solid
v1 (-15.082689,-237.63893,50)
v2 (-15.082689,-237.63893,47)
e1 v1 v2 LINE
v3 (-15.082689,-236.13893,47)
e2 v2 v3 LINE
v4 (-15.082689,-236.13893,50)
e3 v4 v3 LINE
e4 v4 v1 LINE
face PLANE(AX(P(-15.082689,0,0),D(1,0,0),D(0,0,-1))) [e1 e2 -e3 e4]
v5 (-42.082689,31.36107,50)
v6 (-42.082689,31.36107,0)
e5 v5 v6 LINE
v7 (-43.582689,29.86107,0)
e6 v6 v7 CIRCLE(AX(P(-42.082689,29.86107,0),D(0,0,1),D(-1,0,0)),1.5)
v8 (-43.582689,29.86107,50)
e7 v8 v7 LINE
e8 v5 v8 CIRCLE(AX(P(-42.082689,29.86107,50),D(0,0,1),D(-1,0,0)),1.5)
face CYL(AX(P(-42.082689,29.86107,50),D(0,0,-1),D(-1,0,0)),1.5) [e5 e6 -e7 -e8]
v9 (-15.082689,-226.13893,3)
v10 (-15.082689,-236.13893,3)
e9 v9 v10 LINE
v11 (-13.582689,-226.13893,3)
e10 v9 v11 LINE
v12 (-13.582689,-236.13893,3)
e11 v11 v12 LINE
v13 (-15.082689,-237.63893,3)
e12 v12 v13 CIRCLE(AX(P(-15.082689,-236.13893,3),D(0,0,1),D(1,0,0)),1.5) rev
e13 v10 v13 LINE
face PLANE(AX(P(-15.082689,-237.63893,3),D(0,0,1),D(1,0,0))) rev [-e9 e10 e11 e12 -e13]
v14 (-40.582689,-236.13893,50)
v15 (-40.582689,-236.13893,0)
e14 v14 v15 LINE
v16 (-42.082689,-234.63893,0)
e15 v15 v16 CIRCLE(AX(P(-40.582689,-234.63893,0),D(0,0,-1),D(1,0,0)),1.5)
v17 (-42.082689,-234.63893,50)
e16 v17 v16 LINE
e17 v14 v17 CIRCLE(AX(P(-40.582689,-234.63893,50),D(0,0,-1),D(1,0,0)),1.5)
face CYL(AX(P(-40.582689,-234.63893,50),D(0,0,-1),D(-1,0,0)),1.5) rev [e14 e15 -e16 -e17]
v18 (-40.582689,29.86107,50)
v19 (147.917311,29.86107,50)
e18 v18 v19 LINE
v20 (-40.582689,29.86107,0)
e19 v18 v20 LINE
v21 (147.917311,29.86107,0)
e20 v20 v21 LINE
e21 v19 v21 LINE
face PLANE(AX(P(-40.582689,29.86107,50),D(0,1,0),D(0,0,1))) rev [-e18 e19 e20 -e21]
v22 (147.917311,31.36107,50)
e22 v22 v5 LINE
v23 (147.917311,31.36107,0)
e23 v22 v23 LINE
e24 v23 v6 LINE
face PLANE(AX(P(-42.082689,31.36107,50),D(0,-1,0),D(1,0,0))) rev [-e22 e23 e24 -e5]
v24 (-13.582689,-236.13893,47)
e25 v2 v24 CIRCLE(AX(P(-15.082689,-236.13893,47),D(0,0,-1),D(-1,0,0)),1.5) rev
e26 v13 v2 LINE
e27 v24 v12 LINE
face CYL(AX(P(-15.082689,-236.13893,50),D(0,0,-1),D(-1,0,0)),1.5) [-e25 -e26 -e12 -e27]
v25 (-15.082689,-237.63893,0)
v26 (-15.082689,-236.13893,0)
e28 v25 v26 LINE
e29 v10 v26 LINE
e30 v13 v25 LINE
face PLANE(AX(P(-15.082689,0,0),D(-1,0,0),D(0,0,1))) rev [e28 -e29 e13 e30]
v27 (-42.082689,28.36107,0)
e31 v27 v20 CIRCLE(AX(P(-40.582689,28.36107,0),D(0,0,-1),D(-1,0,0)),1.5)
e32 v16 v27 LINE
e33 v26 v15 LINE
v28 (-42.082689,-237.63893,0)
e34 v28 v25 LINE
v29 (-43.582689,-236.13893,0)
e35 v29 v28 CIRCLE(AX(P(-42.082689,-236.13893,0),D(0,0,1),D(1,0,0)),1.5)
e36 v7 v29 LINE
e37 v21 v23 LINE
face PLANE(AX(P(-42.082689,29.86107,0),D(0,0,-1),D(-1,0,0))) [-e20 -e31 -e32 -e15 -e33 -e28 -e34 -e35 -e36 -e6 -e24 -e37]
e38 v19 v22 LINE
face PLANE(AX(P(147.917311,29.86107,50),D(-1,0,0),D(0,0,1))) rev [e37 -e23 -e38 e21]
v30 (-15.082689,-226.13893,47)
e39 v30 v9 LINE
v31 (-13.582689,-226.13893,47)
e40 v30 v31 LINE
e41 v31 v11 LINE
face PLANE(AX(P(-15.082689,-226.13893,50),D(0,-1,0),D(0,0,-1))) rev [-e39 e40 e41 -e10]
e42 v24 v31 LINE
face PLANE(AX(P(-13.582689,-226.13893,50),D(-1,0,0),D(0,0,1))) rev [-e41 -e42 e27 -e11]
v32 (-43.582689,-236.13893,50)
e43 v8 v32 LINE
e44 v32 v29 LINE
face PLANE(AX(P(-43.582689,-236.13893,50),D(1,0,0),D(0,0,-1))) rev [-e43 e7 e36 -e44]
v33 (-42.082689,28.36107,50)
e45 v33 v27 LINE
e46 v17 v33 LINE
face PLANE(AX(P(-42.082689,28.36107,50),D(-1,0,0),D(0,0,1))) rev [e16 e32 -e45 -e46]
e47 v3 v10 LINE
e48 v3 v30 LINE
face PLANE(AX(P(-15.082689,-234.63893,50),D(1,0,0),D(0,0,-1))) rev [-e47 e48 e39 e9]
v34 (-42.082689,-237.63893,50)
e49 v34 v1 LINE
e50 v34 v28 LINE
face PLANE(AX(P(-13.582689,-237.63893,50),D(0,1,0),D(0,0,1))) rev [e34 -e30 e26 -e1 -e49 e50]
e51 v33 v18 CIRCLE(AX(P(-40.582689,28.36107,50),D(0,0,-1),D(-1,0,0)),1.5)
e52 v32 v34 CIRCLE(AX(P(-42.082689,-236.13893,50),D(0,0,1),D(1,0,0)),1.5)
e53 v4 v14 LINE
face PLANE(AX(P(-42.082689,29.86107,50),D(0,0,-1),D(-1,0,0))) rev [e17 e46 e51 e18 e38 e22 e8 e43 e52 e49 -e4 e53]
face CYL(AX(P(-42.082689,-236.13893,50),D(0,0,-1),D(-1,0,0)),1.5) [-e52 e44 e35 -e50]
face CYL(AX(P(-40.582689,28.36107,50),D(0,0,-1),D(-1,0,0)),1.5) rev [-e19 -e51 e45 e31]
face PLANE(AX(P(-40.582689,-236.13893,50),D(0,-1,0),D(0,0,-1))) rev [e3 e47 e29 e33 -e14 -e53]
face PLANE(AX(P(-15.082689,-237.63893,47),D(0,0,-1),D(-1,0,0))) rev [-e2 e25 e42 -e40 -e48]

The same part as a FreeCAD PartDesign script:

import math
import FreeCAD as App
import Part
import Sketcher


def edges_at(feature, points):
    """Names of the edges that pass closest to the given points."""
    edges = feature.Shape.Edges
    near = lambda p: min(range(len(edges)), key=lambda i: edges[i].distToShape(Part.Vertex(*p))[0])
    return sorted({f"Edge{near(p) + 1}" for p in points})

doc = App.newDocument("Part")
body = doc.addObject("PartDesign::Body", "Body")

sketch1 = body.newObject("Sketcher::SketchObject", "Sketch")
sketch1.AttachmentSupport = (doc.getObject("XY_Plane"), [""])
sketch1.MapMode = "FlatFace"
sketch1.addGeometry(Part.LineSegment(App.Vector(-40.6, 29.9, 0), App.Vector(147.9, 29.9, 0)), False)
sketch1.addGeometry(Part.LineSegment(App.Vector(147.9, 29.9, 0), App.Vector(147.9, 31.4, 0)), False)
sketch1.addGeometry(Part.LineSegment(App.Vector(147.9, 31.4, 0), App.Vector(-42.1, 31.4, 0)), False)
sketch1.addGeometry(Part.ArcOfCircle(Part.Circle(App.Vector(-42.1, 29.9, 0), App.Vector(0, 0, 1), 1.5), math.radians(90), math.radians(180)), False)
sketch1.addGeometry(Part.LineSegment(App.Vector(-43.6, 29.9, 0), App.Vector(-43.6, -236.1, 0)), False)
sketch1.addGeometry(Part.ArcOfCircle(Part.Circle(App.Vector(-42.1, -236.1, 0), App.Vector(0, 0, 1), 1.5), math.radians(180), math.radians(270)), False)
sketch1.addGeometry(Part.LineSegment(App.Vector(-42.1, -237.6, 0), App.Vector(-13.6, -237.6, 0)), False)
sketch1.addGeometry(Part.LineSegment(App.Vector(-13.6, -237.6, 0), App.Vector(-13.6, -226.1, 0)), False)
sketch1.addGeometry(Part.LineSegment(App.Vector(-13.6, -226.1, 0), App.Vector(-15.1, -226.1, 0)), False)
sketch1.addGeometry(Part.LineSegment(App.Vector(-15.1, -226.1, 0), App.Vector(-15.1, -236.1, 0)), False)
sketch1.addGeometry(Part.LineSegment(App.Vector(-15.1, -236.1, 0), App.Vector(-40.6, -236.1, 0)), False)
sketch1.addGeometry(Part.ArcOfCircle(Part.Circle(App.Vector(-40.6, -234.6, 0), App.Vector(0, 0, 1), 1.5), math.radians(180), math.radians(270)), False)
sketch1.addGeometry(Part.LineSegment(App.Vector(-42.1, -234.6, 0), App.Vector(-42.1, 28.4, 0)), False)
sketch1.addGeometry(Part.ArcOfCircle(Part.Circle(App.Vector(-40.6, 28.4, 0), App.Vector(0, 0, 1), 1.5), math.radians(90), math.radians(180)), False)
sketch1.addConstraint(Sketcher.Constraint("Coincident", 0, 2, 1, 1))
sketch1.addConstraint(Sketcher.Constraint("Coincident", 1, 2, 2, 1))
sketch1.addConstraint(Sketcher.Constraint("Tangent", 2, 2, 3, 1))
sketch1.addConstraint(Sketcher.Constraint("Tangent", 3, 2, 4, 1))
sketch1.addConstraint(Sketcher.Constraint("Tangent", 4, 2, 5, 1))
sketch1.addConstraint(Sketcher.Constraint("Tangent", 5, 2, 6, 1))
sketch1.addConstraint(Sketcher.Constraint("Coincident", 6, 2, 7, 1))
sketch1.addConstraint(Sketcher.Constraint("Coincident", 7, 2, 8, 1))
sketch1.addConstraint(Sketcher.Constraint("Coincident", 8, 2, 9, 1))
sketch1.addConstraint(Sketcher.Constraint("Coincident", 9, 2, 10, 1))
sketch1.addConstraint(Sketcher.Constraint("Tangent", 10, 2, 11, 2))
sketch1.addConstraint(Sketcher.Constraint("Tangent", 11, 1, 12, 1))
sketch1.addConstraint(Sketcher.Constraint("Tangent", 12, 2, 13, 2))
sketch1.addConstraint(Sketcher.Constraint("Tangent", 13, 1, 0, 1))
sketch1.addConstraint(Sketcher.Constraint("Horizontal", 0))
sketch1.addConstraint(Sketcher.Constraint("Vertical", 1))
sketch1.addConstraint(Sketcher.Constraint("Horizontal", 2))
sketch1.addConstraint(Sketcher.Constraint("Vertical", 4))
sketch1.addConstraint(Sketcher.Constraint("Horizontal", 6))
sketch1.addConstraint(Sketcher.Constraint("Vertical", 7))
sketch1.addConstraint(Sketcher.Constraint("Horizontal", 8))
sketch1.addConstraint(Sketcher.Constraint("Vertical", 9))
sketch1.addConstraint(Sketcher.Constraint("Horizontal", 10))
sketch1.addConstraint(Sketcher.Constraint("Vertical", 12))
sketch1.addConstraint(Sketcher.Constraint("Equal", 3, 5))
sketch1.addConstraint(Sketcher.Constraint("Equal", 5, 11))
sketch1.addConstraint(Sketcher.Constraint("Equal", 11, 13))
sketch1.addConstraint(Sketcher.Constraint("Horizontal", 3, 3, 0, 2))
sketch1.addConstraint(Sketcher.Constraint("Horizontal", 4, 2, 9, 2))
sketch1.addConstraint(Sketcher.Constraint("Vertical", 5, 2, 11, 1))
sketch1.addConstraint(Sketcher.Constraint("Equal", 8, 1))
sketch1.addConstraint(Sketcher.Constraint("Radius", 3, 1.5))
sketch1.addConstraint(Sketcher.Constraint("DistanceX", 2, 2, 2, 1, 190.0))
sketch1.addConstraint(Sketcher.Constraint("DistanceY", 4, 2, 4, 1, 266.0))
sketch1.addConstraint(Sketcher.Constraint("DistanceY", 9, 2, 9, 1, 10.0))
sketch1.addConstraint(Sketcher.Constraint("DistanceX", 6, 1, 6, 2, 28.5))
sketch1.addConstraint(Sketcher.Constraint("DistanceX", 3, 3, -1, 1, 42.082689))
sketch1.addConstraint(Sketcher.Constraint("DistanceY", -1, 1, 3, 3, 29.86107))
pad1 = body.newObject("PartDesign::Pad", "Pad")
pad1.Profile = sketch1
pad1.Length = 50

sketch2 = body.newObject("Sketcher::SketchObject", "Sketch001")
sketch2.AttachmentSupport = (doc.getObject("YZ_Plane"), [""])
sketch2.MapMode = "FlatFace"
sketch2.AttachmentOffset = App.Placement(App.Vector(0, 0, -13.582689), App.Rotation())
sketch2.addGeometry(Part.LineSegment(App.Vector(-226.1, 50, 0), App.Vector(-237.6, 50, 0)), False)
sketch2.addGeometry(Part.LineSegment(App.Vector(-237.6, 50, 0), App.Vector(-237.6, 47, 0)), False)
sketch2.addGeometry(Part.LineSegment(App.Vector(-237.6, 47, 0), App.Vector(-226.1, 47, 0)), False)
sketch2.addGeometry(Part.LineSegment(App.Vector(-226.1, 47, 0), App.Vector(-226.1, 50, 0)), False)
sketch2.addGeometry(Part.LineSegment(App.Vector(-226.1, 3, 0), App.Vector(-237.6, 3, 0)), False)
sketch2.addGeometry(Part.LineSegment(App.Vector(-237.6, 3, 0), App.Vector(-237.6, 0, 0)), False)
sketch2.addGeometry(Part.LineSegment(App.Vector(-237.6, 0, 0), App.Vector(-226.1, 0, 0)), False)
sketch2.addGeometry(Part.LineSegment(App.Vector(-226.1, 0, 0), App.Vector(-226.1, 3, 0)), False)
sketch2.addConstraint(Sketcher.Constraint("Coincident", 0, 2, 1, 1))
sketch2.addConstraint(Sketcher.Constraint("Coincident", 1, 2, 2, 1))
sketch2.addConstraint(Sketcher.Constraint("Coincident", 2, 2, 3, 1))
sketch2.addConstraint(Sketcher.Constraint("Coincident", 3, 2, 0, 1))
sketch2.addConstraint(Sketcher.Constraint("Coincident", 4, 2, 5, 1))
sketch2.addConstraint(Sketcher.Constraint("Coincident", 5, 2, 6, 1))
sketch2.addConstraint(Sketcher.Constraint("Coincident", 6, 2, 7, 1))
sketch2.addConstraint(Sketcher.Constraint("Coincident", 7, 2, 4, 1))
sketch2.addConstraint(Sketcher.Constraint("Horizontal", 0))
sketch2.addConstraint(Sketcher.Constraint("Vertical", 1))
sketch2.addConstraint(Sketcher.Constraint("Horizontal", 2))
sketch2.addConstraint(Sketcher.Constraint("Vertical", 3))
sketch2.addConstraint(Sketcher.Constraint("Horizontal", 4))
sketch2.addConstraint(Sketcher.Constraint("Vertical", 5))
sketch2.addConstraint(Sketcher.Constraint("Horizontal", 6))
sketch2.addConstraint(Sketcher.Constraint("Vertical", 7))
sketch2.addConstraint(Sketcher.Constraint("PointOnObject", 5, 2, -1))
sketch2.addConstraint(Sketcher.Constraint("Vertical", 1, 2, 4, 2))
sketch2.addConstraint(Sketcher.Constraint("Vertical", 3, 2, 6, 2))
sketch2.addConstraint(Sketcher.Constraint("Equal", 3, 5))
sketch2.addConstraint(Sketcher.Constraint("DistanceY", 1, 2, 1, 1, 3.0))
sketch2.addConstraint(Sketcher.Constraint("DistanceX", 0, 2, 0, 1, 11.5))
sketch2.addConstraint(Sketcher.Constraint("DistanceY", -1, 1, 0, 2, 50.0))
sketch2.addConstraint(Sketcher.Constraint("DistanceX", 0, 2, -1, 1, 237.63893))
pocket1 = body.newObject("PartDesign::Pocket", "Pocket")
pocket1.Profile = sketch2
pocket1.Length = 1.5
doc.recompute()

fillet = body.newObject("PartDesign::Fillet", "Fillet")
fillet.Base = (pocket1, edges_at(pocket1, [(-13.583, -237.639, 25)]))
fillet.Radius = 1.5

doc.recompute()
